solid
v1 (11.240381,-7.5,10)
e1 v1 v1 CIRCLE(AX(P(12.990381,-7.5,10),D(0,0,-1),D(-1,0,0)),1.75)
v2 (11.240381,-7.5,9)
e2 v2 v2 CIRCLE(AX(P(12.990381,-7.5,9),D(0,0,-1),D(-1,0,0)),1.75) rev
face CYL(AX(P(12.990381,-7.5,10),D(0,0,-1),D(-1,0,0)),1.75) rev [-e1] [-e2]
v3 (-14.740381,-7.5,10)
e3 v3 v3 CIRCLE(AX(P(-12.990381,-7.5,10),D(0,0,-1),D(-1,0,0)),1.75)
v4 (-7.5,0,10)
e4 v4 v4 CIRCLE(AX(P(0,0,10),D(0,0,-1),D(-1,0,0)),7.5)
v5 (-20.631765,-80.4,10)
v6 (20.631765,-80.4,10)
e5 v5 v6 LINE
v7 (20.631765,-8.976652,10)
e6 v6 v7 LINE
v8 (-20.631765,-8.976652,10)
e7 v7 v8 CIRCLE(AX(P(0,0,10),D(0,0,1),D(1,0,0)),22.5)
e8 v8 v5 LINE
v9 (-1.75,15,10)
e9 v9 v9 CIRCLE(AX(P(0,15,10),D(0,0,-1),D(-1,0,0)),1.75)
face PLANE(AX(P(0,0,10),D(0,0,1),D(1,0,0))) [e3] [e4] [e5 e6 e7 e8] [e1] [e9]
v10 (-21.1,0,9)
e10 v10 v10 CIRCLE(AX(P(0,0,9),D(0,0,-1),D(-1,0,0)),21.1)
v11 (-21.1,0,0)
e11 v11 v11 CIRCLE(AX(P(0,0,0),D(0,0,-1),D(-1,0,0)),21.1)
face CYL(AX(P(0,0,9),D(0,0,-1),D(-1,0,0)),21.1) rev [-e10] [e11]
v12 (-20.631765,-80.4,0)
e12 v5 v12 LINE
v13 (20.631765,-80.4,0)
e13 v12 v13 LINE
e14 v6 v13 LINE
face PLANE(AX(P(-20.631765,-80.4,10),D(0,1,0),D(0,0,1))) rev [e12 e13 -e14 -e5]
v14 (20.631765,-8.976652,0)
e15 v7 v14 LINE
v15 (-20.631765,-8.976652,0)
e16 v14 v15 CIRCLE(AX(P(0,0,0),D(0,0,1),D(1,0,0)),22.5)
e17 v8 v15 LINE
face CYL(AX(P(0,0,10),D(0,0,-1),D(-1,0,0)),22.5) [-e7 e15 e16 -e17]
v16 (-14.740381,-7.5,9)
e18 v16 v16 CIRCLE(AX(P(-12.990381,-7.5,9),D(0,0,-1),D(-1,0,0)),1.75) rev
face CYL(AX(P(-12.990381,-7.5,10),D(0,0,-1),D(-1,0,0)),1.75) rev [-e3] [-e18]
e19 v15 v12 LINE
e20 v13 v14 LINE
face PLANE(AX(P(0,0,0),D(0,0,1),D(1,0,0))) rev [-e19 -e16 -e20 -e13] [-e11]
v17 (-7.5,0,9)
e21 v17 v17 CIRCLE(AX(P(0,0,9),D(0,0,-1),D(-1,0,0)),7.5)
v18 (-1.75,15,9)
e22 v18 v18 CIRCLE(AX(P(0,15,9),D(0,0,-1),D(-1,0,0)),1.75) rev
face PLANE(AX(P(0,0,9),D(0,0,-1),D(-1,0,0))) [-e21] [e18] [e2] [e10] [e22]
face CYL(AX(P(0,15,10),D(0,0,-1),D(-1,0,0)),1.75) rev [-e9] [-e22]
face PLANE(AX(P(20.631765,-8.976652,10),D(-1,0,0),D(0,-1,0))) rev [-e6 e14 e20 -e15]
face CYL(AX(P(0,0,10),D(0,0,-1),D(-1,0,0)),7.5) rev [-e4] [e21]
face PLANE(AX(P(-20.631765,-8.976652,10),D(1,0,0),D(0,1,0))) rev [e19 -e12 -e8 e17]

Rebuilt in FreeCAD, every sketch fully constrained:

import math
import FreeCAD as App
import Part
import Sketcher

V = App.Vector

doc = App.newDocument("Part")
body = doc.addObject("PartDesign::Body", "Body")

sketch1 = body.newObject("Sketcher::SketchObject", "Sketch")
sketch1.AttachmentSupport = (doc.getObject("XY_Plane"), [""])
sketch1.MapMode = "FlatFace"
sketch1.addGeometry([
    Part.LineSegment(V(-20.631765, -8.976652, 0), V(-20.631765, -80.4, 0)),
    Part.LineSegment(V(-20.631765, -80.4, 0), V(20.631765, -80.4, 0)),
    Part.LineSegment(V(20.631765, -80.4, 0), V(20.631765, -8.976652, 0)),
    Part.ArcOfCircle(Part.Circle(V(0, 0, 0), V(0, 0, 1), 22.5), math.radians(-23.513323), math.radians(203.513323)),
], False)
sketch1.addConstraint([
    Sketcher.Constraint("Coincident", 0, 2, 1, 1),
    Sketcher.Constraint("Coincident", 1, 2, 2, 1),
    Sketcher.Constraint("Coincident", 2, 2, 3, 1),
    Sketcher.Constraint("Coincident", 3, 2, 0, 1),
    Sketcher.Constraint("Vertical", 0),
    Sketcher.Constraint("Horizontal", 1),
    Sketcher.Constraint("Vertical", 2),
    Sketcher.Constraint("Coincident", 3, 3, -1, 1),
    Sketcher.Constraint("Horizontal", 2, 2, 3, 2),
    Sketcher.Constraint("Radius", 3, 22.5),
    Sketcher.Constraint("DistanceY", 0, 2, -1, 1, 80.4),
    Sketcher.Constraint("DistanceX", 1, 1, 1, 2, 41.26353),
])
pad1 = body.newObject("PartDesign::Pad", "Pad")
pad1.Profile = sketch1
pad1.Length = 10

sketch2 = body.newObject("Sketcher::SketchObject", "Sketch001")
sketch2.AttachmentSupport = (doc.getObject("XY_Plane"), [""])
sketch2.MapMode = "FlatFace"
sketch2.addGeometry([
    Part.Circle(V(0, 15, 0), V(0, 0, 1), 1.75),
    Part.Circle(V(-12.990381, -7.5, 0), V(0, 0, 1), 1.75),
    Part.Circle(V(12.990381, -7.5, 0), V(0, 0, 1), 1.75),
], False)
sketch2.addConstraint([
    Sketcher.Constraint("Equal", 0, 1),
    Sketcher.Constraint("Equal", 1, 2),
    Sketcher.Constraint("Symmetric", 1, 3, 2, 3, -2),
    Sketcher.Constraint("PointOnObject", 0, 3, -2),
    Sketcher.Constraint("Diameter", 0, 3.5),
    Sketcher.Constraint("DistanceY", -1, 1, 0, 3, 15.0),
    Sketcher.Constraint("DistanceY", 1, 3, -1, 1, 7.5),
    Sketcher.Constraint("DistanceX", 1, 3, -1, 1, 12.990381),
])
pocket1 = body.newObject("PartDesign::Pocket", "Pocket")
pocket1.Profile = sketch2
pocket1.Length = 10
pocket1.Reversed = True

sketch3 = body.newObject("Sketcher::SketchObject", "Sketch002")
sketch3.AttachmentSupport = (doc.getObject("XY_Plane"), [""])
sketch3.MapMode = "FlatFace"
sketch3.addGeometry(Part.Circle(V(0, 0, 0), V(0, 0, 1), 21.1), False)
sketch3.addConstraint([
    Sketcher.Constraint("Coincident", 0, 3, -1, 1),
    Sketcher.Constraint("Diameter", 0, 42.2),
])
pocket2 = body.newObject("PartDesign::Pocket", "Pocket001")
pocket2.Profile = sketch3
pocket2.Length = 9
pocket2.Reversed = True

sketch4 = body.newObject("Sketcher::SketchObject", "Sketch003")
sketch4.AttachmentSupport = (doc.getObject("XY_Plane"), [""])
sketch4.MapMode = "FlatFace"
sketch4.addGeometry(Part.Circle(V(0, 0, 0), V(0, 0, 1), 7.5), False)
sketch4.addConstraint([
    Sketcher.Constraint("Coincident", 0, 3, -1, 1),
    Sketcher.Constraint("Diameter", 0, 15.0),
])
pocket3 = body.newObject("PartDesign::Pocket", "Pocket002")
pocket3.Profile = sketch4
pocket3.Length = 10
pocket3.Reversed = True

doc.recompute()
